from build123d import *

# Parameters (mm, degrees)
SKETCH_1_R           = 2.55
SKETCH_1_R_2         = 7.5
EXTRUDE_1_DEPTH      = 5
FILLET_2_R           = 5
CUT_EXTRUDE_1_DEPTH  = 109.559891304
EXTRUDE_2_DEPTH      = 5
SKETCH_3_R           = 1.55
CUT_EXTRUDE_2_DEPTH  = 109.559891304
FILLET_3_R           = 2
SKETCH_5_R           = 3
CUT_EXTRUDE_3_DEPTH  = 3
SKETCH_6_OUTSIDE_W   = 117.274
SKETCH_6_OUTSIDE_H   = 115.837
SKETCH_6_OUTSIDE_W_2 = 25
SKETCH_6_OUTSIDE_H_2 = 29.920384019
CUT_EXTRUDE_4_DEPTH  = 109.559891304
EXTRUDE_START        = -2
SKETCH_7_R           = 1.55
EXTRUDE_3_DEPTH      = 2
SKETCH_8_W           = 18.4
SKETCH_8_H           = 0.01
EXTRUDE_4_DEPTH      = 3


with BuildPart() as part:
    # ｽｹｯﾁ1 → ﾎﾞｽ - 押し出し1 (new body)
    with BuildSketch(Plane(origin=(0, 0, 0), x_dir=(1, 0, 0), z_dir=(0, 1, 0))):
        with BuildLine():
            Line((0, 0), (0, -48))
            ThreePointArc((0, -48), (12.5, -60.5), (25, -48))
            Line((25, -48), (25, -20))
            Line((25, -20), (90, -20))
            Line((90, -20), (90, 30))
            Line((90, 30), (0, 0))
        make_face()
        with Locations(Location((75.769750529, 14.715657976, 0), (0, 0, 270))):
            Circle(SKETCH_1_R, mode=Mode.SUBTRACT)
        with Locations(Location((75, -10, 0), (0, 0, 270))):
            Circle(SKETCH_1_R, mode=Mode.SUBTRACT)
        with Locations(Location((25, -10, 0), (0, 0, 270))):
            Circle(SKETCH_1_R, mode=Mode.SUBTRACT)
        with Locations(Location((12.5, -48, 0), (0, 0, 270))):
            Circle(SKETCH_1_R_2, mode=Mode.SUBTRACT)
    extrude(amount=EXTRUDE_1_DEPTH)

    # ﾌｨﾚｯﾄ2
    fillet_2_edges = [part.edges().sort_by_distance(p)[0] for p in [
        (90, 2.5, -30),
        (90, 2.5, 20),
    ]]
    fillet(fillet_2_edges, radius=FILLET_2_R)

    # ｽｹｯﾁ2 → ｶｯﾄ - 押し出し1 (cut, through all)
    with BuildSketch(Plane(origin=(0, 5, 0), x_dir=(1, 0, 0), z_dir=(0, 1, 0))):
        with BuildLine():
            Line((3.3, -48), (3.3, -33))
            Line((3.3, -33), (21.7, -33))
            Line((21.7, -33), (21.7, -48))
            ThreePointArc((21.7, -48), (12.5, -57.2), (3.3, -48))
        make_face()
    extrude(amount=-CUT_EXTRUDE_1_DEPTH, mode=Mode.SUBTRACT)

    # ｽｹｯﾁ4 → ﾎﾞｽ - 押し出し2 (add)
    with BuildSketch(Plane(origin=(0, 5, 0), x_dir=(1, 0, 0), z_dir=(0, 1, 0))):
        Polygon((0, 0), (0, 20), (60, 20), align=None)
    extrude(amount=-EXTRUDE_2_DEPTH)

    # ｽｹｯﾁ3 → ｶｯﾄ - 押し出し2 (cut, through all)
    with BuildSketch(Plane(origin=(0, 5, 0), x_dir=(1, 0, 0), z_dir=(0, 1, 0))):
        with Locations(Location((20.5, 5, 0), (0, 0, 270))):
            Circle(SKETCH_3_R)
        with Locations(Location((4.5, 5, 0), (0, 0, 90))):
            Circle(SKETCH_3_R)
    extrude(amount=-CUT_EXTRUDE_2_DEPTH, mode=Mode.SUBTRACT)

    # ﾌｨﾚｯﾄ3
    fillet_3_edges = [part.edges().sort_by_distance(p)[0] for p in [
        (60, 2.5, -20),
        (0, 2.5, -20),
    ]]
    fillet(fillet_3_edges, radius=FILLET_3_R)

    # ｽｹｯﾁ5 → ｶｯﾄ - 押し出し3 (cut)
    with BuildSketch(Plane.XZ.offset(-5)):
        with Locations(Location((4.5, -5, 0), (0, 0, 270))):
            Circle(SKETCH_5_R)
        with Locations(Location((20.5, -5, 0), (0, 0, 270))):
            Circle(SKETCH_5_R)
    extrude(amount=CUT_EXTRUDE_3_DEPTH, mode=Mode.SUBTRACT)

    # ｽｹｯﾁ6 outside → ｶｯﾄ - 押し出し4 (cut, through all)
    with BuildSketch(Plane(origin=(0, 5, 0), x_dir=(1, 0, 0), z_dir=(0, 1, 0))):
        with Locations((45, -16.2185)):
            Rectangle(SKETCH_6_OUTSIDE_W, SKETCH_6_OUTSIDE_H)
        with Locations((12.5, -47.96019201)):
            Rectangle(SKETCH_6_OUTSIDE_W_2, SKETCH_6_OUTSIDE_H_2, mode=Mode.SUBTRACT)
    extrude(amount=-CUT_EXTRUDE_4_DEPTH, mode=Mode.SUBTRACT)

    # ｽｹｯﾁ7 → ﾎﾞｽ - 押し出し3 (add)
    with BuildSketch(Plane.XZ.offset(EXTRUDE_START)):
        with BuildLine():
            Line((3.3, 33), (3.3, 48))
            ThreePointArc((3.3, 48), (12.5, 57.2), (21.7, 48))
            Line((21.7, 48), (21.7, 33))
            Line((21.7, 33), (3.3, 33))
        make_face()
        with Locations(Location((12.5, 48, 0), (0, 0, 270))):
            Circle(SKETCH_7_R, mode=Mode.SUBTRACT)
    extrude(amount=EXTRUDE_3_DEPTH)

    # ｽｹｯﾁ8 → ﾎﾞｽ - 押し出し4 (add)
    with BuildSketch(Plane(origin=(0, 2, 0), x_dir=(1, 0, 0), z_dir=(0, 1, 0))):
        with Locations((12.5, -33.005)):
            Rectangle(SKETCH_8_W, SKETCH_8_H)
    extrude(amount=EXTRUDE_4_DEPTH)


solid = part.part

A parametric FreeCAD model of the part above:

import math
import FreeCAD as App
import Part
import Sketcher
from FreeCAD import Vector


def edges_at(feature, points):
    """Names of the edges that pass closest to the given points."""
    edges = feature.Shape.Edges
    near = lambda p: min(range(len(edges)), key=lambda i: edges[i].distToShape(Part.Vertex(*p))[0])
    return sorted({f"Edge{near(p) + 1}" for p in points})

doc = App.newDocument("Part")
body = doc.addObject("PartDesign::Body", "Body")

sketch1 = body.newObject("Sketcher::SketchObject", "Sketch")
sketch1.AttachmentSupport = (doc.getObject("XZ_Plane"), [""])
sketch1.MapMode = "FlatFace"
sketch1.addGeometry([
    Part.LineSegment(Vector(0, 0, 0), Vector(0, 48, 0)),
    Part.ArcOfCircle(Part.Circle(Vector(12.5, 48, 0), Vector(0, 0, 1), 12.5), math.radians(0), math.radians(180)),
    Part.LineSegment(Vector(25, 48, 0), Vector(25, 20, 0)),
    Part.LineSegment(Vector(25, 20, 0), Vector(90, 20, 0)),
    Part.LineSegment(Vector(90, 20, 0), Vector(90, -30, 0)),
    Part.LineSegment(Vector(90, -30, 0), Vector(0, 0, 0)),
    Part.Circle(Vector(12.5, 48, 0), Vector(0, 0, 1), 7.5),
    Part.Circle(Vector(25, 10, 0), Vector(0, 0, 1), 2.5),
    Part.Circle(Vector(75, 10, 0), Vector(0, 0, 1), 2.5),
    Part.Circle(Vector(75.8, -14.7, 0), Vector(0, 0, 1), 2.5),
], False)
sketch1.addConstraint([
    Sketcher.Constraint("Tangent", 0, 2, 1, 2),
    Sketcher.Constraint("Tangent", 1, 1, 2, 1),
    Sketcher.Constraint("Coincident", 2, 2, 3, 1),
    Sketcher.Constraint("Coincident", 3, 2, 4, 1),
    Sketcher.Constraint("Coincident", 4, 2, 5, 1),
    Sketcher.Constraint("Coincident", 5, 2, 0, 1),
    Sketcher.Constraint("Vertical", 0),
    Sketcher.Constraint("Vertical", 2),
    Sketcher.Constraint("Horizontal", 3),
    Sketcher.Constraint("Vertical", 4),
    Sketcher.Constraint("Coincident", 5, 2, -1, 1),
    Sketcher.Constraint("Coincident", 6, 3, 1, 3),
    Sketcher.Constraint("Equal", 7, 8),
    Sketcher.Constraint("Equal", 8, 9),
    Sketcher.Constraint("Horizontal", 7, 3, 8, 3),
    Sketcher.Constraint("Vertical", 7, 3, 1, 1),
    Sketcher.Constraint("Diameter", 6, 15.0),
    Sketcher.Constraint("Diameter", 7, 5.1),
    Sketcher.Constraint("Radius", 1, 12.5),
    Sketcher.Constraint("DistanceX", 3, 1, 3, 2, 65.0),
    Sketcher.Constraint("DistanceY", 0, 1, 0, 2, 48.0),
    Sketcher.Constraint("DistanceY", 2, 2, 2, 1, 28.0),
    Sketcher.Constraint("DistanceY", 4, 2, 4, 1, 50.0),
    Sketcher.Constraint("DistanceY", -1, 1, 7, 3, 10.0),
    Sketcher.Constraint("DistanceX", -1, 1, 8, 3, 75.0),
    Sketcher.Constraint("DistanceX", -1, 1, 9, 3, 75.769751),
    Sketcher.Constraint("DistanceY", 9, 3, -1, 1, 14.715658),
])
pad1 = body.newObject("PartDesign::Pad", "Pad")
pad1.Profile = sketch1
pad1.Length = 5
pad1.Reversed = True
doc.recompute()

fillet = body.newObject("PartDesign::Fillet", "Fillet")
fillet.Base = (pad1, edges_at(pad1, [(90, 2.5, -30), (90, 2.5, 20)]))
fillet.Radius = 5

sketch2 = body.newObject("Sketcher::SketchObject", "Sketch001")
sketch2.AttachmentSupport = (doc.getObject("XZ_Plane"), [""])
sketch2.MapMode = "FlatFace"
sketch2.AttachmentOffset = App.Placement(Vector(0, 0, -5), App.Rotation())
sketch2.addGeometry([
    Part.LineSegment(Vector(3, 33, 0), Vector(3, 48, 0)),
    Part.ArcOfCircle(Part.Circle(Vector(12, 48, 0), Vector(0, 0, 1), 9), math.radians(0), math.radians(180)),
    Part.LineSegment(Vector(22, 48, 0), Vector(22, 33, 0)),
    Part.LineSegment(Vector(22, 33, 0), Vector(3, 33, 0)),
], False)
sketch2.addConstraint([
    Sketcher.Constraint("Tangent", 0, 2, 1, 2),
    Sketcher.Constraint("Tangent", 1, 1, 2, 1),
    Sketcher.Constraint("Coincident", 2, 2, 3, 1),
    Sketcher.Constraint("Coincident", 3, 2, 0, 1),
    Sketcher.Constraint("Vertical", 0),
    Sketcher.Constraint("Vertical", 2),
    Sketcher.Constraint("Horizontal", 3),
    Sketcher.Constraint("Radius", 1, 9.2),
    Sketcher.Constraint("DistanceY", 0, 1, 0, 2, 15.0),
    Sketcher.Constraint("DistanceY", -1, 1, 1, 3, 48.0),
    Sketcher.Constraint("DistanceX", -1, 1, 1, 3, 12.5),
])
pocket1 = body.newObject("PartDesign::Pocket", "Pocket")
pocket1.Profile = sketch2
pocket1.Type = "ThroughAll"
pocket1.Reversed = True

sketch3 = body.newObject("Sketcher::SketchObject", "Sketch002")
sketch3.AttachmentSupport = (doc.getObject("XZ_Plane"), [""])
sketch3.MapMode = "FlatFace"
sketch3.AttachmentOffset = App.Placement(Vector(0, 0, -5), App.Rotation())
sketch3.addGeometry([
    Part.LineSegment(Vector(0, -20, 0), Vector(0, 0, 0)),
    Part.LineSegment(Vector(0, 0, 0), Vector(60, -20, 0)),
    Part.LineSegment(Vector(60, -20, 0), Vector(0, -20, 0)),
], False)
sketch3.addConstraint([
    Sketcher.Constraint("Coincident", 0, 2, 1, 1),
    Sketcher.Constraint("Coincident", 1, 2, 2, 1),
    Sketcher.Constraint("Coincident", 2, 2, 0, 1),
    Sketcher.Constraint("Vertical", 0),
    Sketcher.Constraint("Horizontal", 2),
    Sketcher.Constraint("Coincident", 0, 2, -1, 1),
    Sketcher.Constraint("DistanceX", 2, 2, 2, 1, 60.0),
    Sketcher.Constraint("DistanceY", 0, 1, 0, 2, 20.0),
])
pad2 = body.newObject("PartDesign::Pad", "Pad001")
pad2.Profile = sketch3
pad2.Length = 5

sketch4 = body.newObject("Sketcher::SketchObject", "Sketch003")
sketch4.AttachmentSupport = (doc.getObject("XZ_Plane"), [""])
sketch4.MapMode = "FlatFace"
sketch4.AttachmentOffset = App.Placement(Vector(0, 0, -5), App.Rotation())
sketch4.addGeometry([
    Part.Circle(Vector(20.5, -5, 0), Vector(0, 0, 1), 1.6),
    Part.Circle(Vector(4.5, -5, 0), Vector(0, 0, 1), 1.6),
], False)
sketch4.addConstraint([
    Sketcher.Constraint("Equal", 0, 1),
    Sketcher.Constraint("Horizontal", 0, 3, 1, 3),
    Sketcher.Constraint("Diameter", 0, 3.1),
    Sketcher.Constraint("DistanceY", 0, 3, -1, 1, 5.0),
    Sketcher.Constraint("DistanceX", 1, 3, 0, 3, 16.0),
    Sketcher.Constraint("DistanceX", -1, 1, 0, 3, 20.5),
])
pocket2 = body.newObject("PartDesign::Pocket", "Pocket001")
pocket2.Profile = sketch4
pocket2.Type = "ThroughAll"
pocket2.Reversed = True
doc.recompute()

fillet2 = body.newObject("PartDesign::Fillet", "Fillet001")
fillet2.Base = (pocket2, edges_at(pocket2, [(60, 2.5, -20), (0, 2.5, -20)]))
fillet2.Radius = 2

sketch5 = body.newObject("Sketcher::SketchObject", "Sketch004")
sketch5.AttachmentSupport = (doc.getObject("XZ_Plane"), [""])
sketch5.MapMode = "FlatFace"
sketch5.AttachmentOffset = App.Placement(Vector(0, 0, -5), App.Rotation())
sketch5.addGeometry([
    Part.Circle(Vector(4.5, -5, 0), Vector(0, 0, 1), 3),
    Part.Circle(Vector(20.5, -5, 0), Vector(0, 0, 1), 3),
], False)
sketch5.addConstraint([
    Sketcher.Constraint("Equal", 0, 1),
    Sketcher.Constraint("Horizontal", 0, 3, 1, 3),
    Sketcher.Constraint("Diameter", 0, 6.0),
    Sketcher.Constraint("DistanceY", 0, 3, -1, 1, 5.0),
    Sketcher.Constraint("DistanceX", 0, 3, 1, 3, 16.0),
    Sketcher.Constraint("DistanceX", -1, 1, 0, 3, 4.5),
])
pocket3 = body.newObject("PartDesign::Pocket", "Pocket002")
pocket3.Profile = sketch5
pocket3.Length = 3
pocket3.Reversed = True

sketch6 = body.newObject("Sketcher::SketchObject", "Sketch005")
sketch6.AttachmentSupport = (doc.getObject("XZ_Plane"), [""])
sketch6.MapMode = "FlatFace"
sketch6.AttachmentOffset = App.Placement(Vector(0, 0, -5), App.Rotation())
sketch6.addGeometry([
    Part.LineSegment(Vector(-14, -42, 0), Vector(-14, 74, 0)),
    Part.LineSegment(Vector(-14, 74, 0), Vector(104, 74, 0)),
    Part.LineSegment(Vector(104, 74, 0), Vector(104, -42, 0)),
    Part.LineSegment(Vector(104, -42, 0), Vector(-14, -42, 0)),
    Part.LineSegment(Vector(25, 63, 0), Vector(0, 63, 0)),
    Part.LineSegment(Vector(0, 63, 0), Vector(0, 33, 0)),
    Part.LineSegment(Vector(0, 33, 0), Vector(25, 33, 0)),
    Part.LineSegment(Vector(25, 33, 0), Vector(25, 63, 0)),
], False)
sketch6.addConstraint([
    Sketcher.Constraint("Coincident", 0, 2, 1, 1),
    Sketcher.Constraint("Coincident", 1, 2, 2, 1),
    Sketcher.Constraint("Coincident", 2, 2, 3, 1),
    Sketcher.Constraint("Coincident", 3, 2, 0, 1),
    Sketcher.Constraint("Coincident", 4, 2, 5, 1),
    Sketcher.Constraint("Coincident", 5, 2, 6, 1),
    Sketcher.Constraint("Coincident", 6, 2, 7, 1),
    Sketcher.Constraint("Coincident", 7, 2, 4, 1),
    Sketcher.Constraint("Vertical", 0),
    Sketcher.Constraint("Horizontal", 1),
    Sketcher.Constraint("Vertical", 2),
    Sketcher.Constraint("Horizontal", 3),
    Sketcher.Constraint("Horizontal", 4),
    Sketcher.Constraint("Vertical", 5),
    Sketcher.Constraint("Horizontal", 6),
    Sketcher.Constraint("Vertical", 7),
    Sketcher.Constraint("PointOnObject", 4, 2, -2),
    Sketcher.Constraint("DistanceX", 4, 2, 4, 1, 25.0),
    Sketcher.Constraint("DistanceY", -1, 1, 5, 2, 33.0),
    Sketcher.Constraint("DistanceY", 2, 2, -1, 1, 41.7),
    Sketcher.Constraint("DistanceX", 1, 1, 1, 2, 117.274),
    Sketcher.Constraint("DistanceY", 0, 1, 0, 2, 115.837),
    Sketcher.Constraint("DistanceX", 0, 2, -1, 1, 13.637),
    Sketcher.Constraint("DistanceY", 5, 2, 5, 1, 29.920384),
])
pocket4 = body.newObject("PartDesign::Pocket", "Pocket003")
pocket4.Profile = sketch6
pocket4.Type = "ThroughAll"
pocket4.Reversed = True

sketch7 = body.newObject("Sketcher::SketchObject", "Sketch006")
sketch7.AttachmentSupport = (doc.getObject("XZ_Plane"), [""])
sketch7.MapMode = "FlatFace"
sketch7.AttachmentOffset = App.Placement(Vector(0, 0, -2), App.Rotation())
sketch7.addGeometry([
    Part.LineSegment(Vector(3.3, 48, 0), Vector(3.3, 33, 0)),
    Part.LineSegment(Vector(3.3, 33, 0), Vector(21.7, 33, 0)),
    Part.LineSegment(Vector(21.7, 33, 0), Vector(21.7, 48, 0)),
    Part.ArcOfCircle(Part.Circle(Vector(12.5, 48, 0), Vector(0, 0, 1), 9.2), math.radians(0), math.radians(180)),
    Part.Circle(Vector(12.5, 48, 0), Vector(0, 0, 1), 1.6),
], False)
sketch7.addConstraint([
    Sketcher.Constraint("Coincident", 0, 2, 1, 1),
    Sketcher.Constraint("Coincident", 1, 2, 2, 1),
    Sketcher.Constraint("Tangent", 2, 2, 3, 1),
    Sketcher.Constraint("Tangent", 3, 2, 0, 1),
    Sketcher.Constraint("Vertical", 0),
    Sketcher.Constraint("Horizontal", 1),
    Sketcher.Constraint("Vertical", 2),
    Sketcher.Constraint("Coincident", 4, 3, 3, 3),
    Sketcher.Constraint("Diameter", 4, 3.1),
    Sketcher.Constraint("Radius", 3, 9.2),
    Sketcher.Constraint("DistanceY", 0, 2, 0, 1, 15.0),
    Sketcher.Constraint("DistanceY", -1, 1, 3, 3, 48.0),
    Sketcher.Constraint("DistanceX", -1, 1, 3, 3, 12.5),
])
pad3 = body.newObject("PartDesign::Pad", "Pad002")
pad3.Profile = sketch7
pad3.Length = 2

sketch8 = body.newObject("Sketcher::SketchObject", "Sketch007")
sketch8.AttachmentSupport = (doc.getObject("XZ_Plane"), [""])
sketch8.MapMode = "FlatFace"
sketch8.AttachmentOffset = App.Placement(Vector(0, 0, -2), App.Rotation())
sketch8.addGeometry([
    Part.LineSegment(Vector(3.3, 33, 0), Vector(3.3, 33.01, 0)),
    Part.LineSegment(Vector(3.3, 33.01, 0), Vector(21.7, 33.01, 0)),
    Part.LineSegment(Vector(21.7, 33.01, 0), Vector(21.7, 33, 0)),
    Part.LineSegment(Vector(21.7, 33, 0), Vector(3.3, 33, 0)),
], False)
sketch8.addConstraint([
    Sketcher.Constraint("Coincident", 0, 2, 1, 1),
    Sketcher.Constraint("Coincident", 1, 2, 2, 1),
    Sketcher.Constraint("Coincident", 2, 2, 3, 1),
    Sketcher.Constraint("Coincident", 3, 2, 0, 1),
    Sketcher.Constraint("Vertical", 0),
    Sketcher.Constraint("Horizontal", 1),
    Sketcher.Constraint("Vertical", 2),
    Sketcher.Constraint("Horizontal", 3),
    Sketcher.Constraint("DistanceX", 1, 1, 1, 2, 18.4),
    Sketcher.Constraint("DistanceY", -1, 1, 2, 2, 33.0),
    Sketcher.Constraint("DistanceY", 0, 1, 0, 2, 0.01),
    Sketcher.Constraint("DistanceX", -1, 1, 0, 2, 3.3),
])
pad4 = body.newObject("PartDesign::Pad", "Pad003")
pad4.Profile = sketch8
pad4.Length = 3
pad4.Reversed = True

doc.recompute()
